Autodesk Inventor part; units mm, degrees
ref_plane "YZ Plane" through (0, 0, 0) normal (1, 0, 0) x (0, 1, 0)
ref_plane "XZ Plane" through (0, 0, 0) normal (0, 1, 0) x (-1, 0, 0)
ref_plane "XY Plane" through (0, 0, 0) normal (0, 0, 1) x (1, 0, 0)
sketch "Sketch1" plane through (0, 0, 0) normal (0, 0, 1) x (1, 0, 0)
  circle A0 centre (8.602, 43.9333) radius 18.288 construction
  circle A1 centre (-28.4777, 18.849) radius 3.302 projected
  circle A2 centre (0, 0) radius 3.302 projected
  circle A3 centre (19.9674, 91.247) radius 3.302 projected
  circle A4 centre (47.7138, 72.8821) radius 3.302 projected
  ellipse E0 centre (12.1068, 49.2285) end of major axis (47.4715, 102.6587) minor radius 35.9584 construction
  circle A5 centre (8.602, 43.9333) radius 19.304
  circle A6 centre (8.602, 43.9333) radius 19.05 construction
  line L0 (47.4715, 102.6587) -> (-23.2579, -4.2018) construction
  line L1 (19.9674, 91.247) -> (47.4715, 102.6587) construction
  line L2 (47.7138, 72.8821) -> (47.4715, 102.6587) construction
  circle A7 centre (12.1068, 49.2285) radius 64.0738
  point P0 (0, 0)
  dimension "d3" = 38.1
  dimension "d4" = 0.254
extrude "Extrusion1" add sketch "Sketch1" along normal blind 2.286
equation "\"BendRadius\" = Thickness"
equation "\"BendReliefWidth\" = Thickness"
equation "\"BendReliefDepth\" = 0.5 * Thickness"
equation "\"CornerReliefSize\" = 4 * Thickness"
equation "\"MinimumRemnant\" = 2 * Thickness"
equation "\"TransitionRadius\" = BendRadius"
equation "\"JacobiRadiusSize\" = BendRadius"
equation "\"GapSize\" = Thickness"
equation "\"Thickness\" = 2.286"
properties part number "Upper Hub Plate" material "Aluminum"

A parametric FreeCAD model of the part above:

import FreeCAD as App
import Part
import Sketcher
Q = App.Units.Quantity

doc = App.newDocument("Part")
body = doc.addObject("PartDesign::Body", "Body")

sketch1 = body.newObject("Sketcher::SketchObject", "Sketch")
sketch1.AttachmentSupport = (doc.getObject("XY_Plane"), [""])
sketch1.MapMode = "FlatFace"
sketch1.addGeometry(Part.Circle(App.Vector(12.1068, 49.2285, 0), App.Vector(0, 0, 1), 64.0738), False)
sketch1.addGeometry(Part.Circle(App.Vector(0, 0, 0), App.Vector(0, 0, 1), 3.302), False)
sketch1.addGeometry(Part.Circle(App.Vector(-28.4777, 18.849, 0), App.Vector(0, 0, 1), 3.302), False)
sketch1.addGeometry(Part.Circle(App.Vector(8.602, 43.9333, 0), App.Vector(0, 0, 1), 19.304), False)
sketch1.addGeometry(Part.Circle(App.Vector(47.7138, 72.8821, 0), App.Vector(0, 0, 1), 3.302), False)
sketch1.addGeometry(Part.Circle(App.Vector(19.9674, 91.247, 0), App.Vector(0, 0, 1), 3.302), False)
sketch1.addConstraint(Sketcher.Constraint("Coincident", 1, 3, -1, 1))
sketch1.addConstraint(Sketcher.Constraint("Equal", 1, 2))
sketch1.addConstraint(Sketcher.Constraint("Equal", 2, 4))
sketch1.addConstraint(Sketcher.Constraint("Equal", 4, 5))
sketch1.addConstraint(Sketcher.Constraint("Diameter", 1, Q("0.26 in")))
sketch1.addConstraint(Sketcher.Constraint("Diameter", 3, Q("1.52 in")))
sketch1.addConstraint(Sketcher.Constraint("Diameter", 0, 128.1476))
sketch1.addConstraint(Sketcher.Constraint("DistanceX", -1, 1, 4, 3, Q("1.8785 in")))
sketch1.addConstraint(Sketcher.Constraint("DistanceY", -1, 1, 5, 3, Q("3.5924 in")))
sketch1.addConstraint(Sketcher.Constraint("DistanceX", -1, 1, 0, 3, 12.1068))
sketch1.addConstraint(Sketcher.Constraint("DistanceY", -1, 1, 0, 3, 49.2285))
sketch1.addConstraint(Sketcher.Constraint("DistanceX", 2, 3, -1, 1, 28.4777))
sketch1.addConstraint(Sketcher.Constraint("DistanceY", -1, 1, 2, 3, 18.849))
sketch1.addConstraint(Sketcher.Constraint("DistanceX", -1, 1, 3, 3, 8.602))
sketch1.addConstraint(Sketcher.Constraint("DistanceY", -1, 1, 3, 3, 43.9333))
sketch1.addConstraint(Sketcher.Constraint("DistanceY", -1, 1, 4, 3, 72.882))
sketch1.addConstraint(Sketcher.Constraint("DistanceX", -1, 1, 5, 3, 19.9674))
pad1 = body.newObject("PartDesign::Pad", "Pad")
pad1.Profile = sketch1
pad1.Length = Q("0.09 in")

doc.recompute()
